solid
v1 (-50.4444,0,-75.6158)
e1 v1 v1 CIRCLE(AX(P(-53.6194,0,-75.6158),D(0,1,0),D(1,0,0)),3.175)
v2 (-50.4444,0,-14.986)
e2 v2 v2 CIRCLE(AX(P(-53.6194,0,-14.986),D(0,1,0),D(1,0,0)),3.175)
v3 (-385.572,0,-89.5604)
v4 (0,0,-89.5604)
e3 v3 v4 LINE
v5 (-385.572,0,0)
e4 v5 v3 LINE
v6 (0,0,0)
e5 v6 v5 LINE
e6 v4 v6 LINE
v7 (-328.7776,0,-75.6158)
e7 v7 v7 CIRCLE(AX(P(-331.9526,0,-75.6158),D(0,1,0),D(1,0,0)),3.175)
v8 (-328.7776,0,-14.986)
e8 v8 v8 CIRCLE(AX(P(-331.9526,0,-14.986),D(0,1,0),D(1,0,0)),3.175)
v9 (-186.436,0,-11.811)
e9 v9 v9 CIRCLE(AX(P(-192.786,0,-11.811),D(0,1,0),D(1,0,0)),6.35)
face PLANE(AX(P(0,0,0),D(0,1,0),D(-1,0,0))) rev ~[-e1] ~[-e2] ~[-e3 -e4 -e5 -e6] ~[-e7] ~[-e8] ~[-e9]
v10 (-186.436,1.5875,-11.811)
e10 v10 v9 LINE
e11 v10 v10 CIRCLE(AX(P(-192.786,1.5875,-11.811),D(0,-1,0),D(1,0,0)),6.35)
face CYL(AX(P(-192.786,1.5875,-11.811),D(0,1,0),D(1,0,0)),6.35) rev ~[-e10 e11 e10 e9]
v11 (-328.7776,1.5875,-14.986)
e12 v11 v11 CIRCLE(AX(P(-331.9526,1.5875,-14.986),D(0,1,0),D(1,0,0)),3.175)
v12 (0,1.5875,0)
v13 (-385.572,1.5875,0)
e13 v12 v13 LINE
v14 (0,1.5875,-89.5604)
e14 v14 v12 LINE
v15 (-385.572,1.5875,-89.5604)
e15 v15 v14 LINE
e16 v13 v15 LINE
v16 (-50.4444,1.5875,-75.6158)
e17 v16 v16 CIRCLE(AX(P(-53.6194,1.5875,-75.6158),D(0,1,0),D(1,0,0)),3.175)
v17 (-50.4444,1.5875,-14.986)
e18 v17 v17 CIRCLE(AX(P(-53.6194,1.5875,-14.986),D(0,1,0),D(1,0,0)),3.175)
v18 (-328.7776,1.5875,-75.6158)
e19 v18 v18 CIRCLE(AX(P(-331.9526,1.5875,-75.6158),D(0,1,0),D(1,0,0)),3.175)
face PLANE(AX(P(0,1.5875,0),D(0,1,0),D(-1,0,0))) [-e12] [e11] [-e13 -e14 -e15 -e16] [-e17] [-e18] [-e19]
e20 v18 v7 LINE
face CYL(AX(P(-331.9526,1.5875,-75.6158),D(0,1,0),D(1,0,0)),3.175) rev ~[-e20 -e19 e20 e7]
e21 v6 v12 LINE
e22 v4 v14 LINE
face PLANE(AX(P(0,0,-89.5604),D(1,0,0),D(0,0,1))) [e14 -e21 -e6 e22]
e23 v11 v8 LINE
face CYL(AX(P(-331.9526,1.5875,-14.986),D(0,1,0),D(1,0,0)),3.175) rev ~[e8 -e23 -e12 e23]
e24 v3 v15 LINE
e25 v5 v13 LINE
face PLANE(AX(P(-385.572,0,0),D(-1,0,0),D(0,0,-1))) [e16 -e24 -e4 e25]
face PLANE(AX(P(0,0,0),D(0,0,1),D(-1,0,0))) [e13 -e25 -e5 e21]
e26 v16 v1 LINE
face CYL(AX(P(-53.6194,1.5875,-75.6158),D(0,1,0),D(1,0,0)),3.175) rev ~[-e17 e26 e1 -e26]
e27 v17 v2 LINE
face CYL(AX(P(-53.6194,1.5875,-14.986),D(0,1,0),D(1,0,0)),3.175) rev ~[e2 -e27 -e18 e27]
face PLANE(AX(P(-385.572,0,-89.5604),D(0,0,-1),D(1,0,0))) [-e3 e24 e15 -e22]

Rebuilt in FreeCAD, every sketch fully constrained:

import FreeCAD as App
import Part
import Sketcher
from FreeCAD import Vector
Q = App.Units.Quantity


def add_polygon(sketch, points):
    """Adds a closed chain of lines whose ends are joined by coincident constraints."""
    first, n = sketch.GeometryCount, len(points)
    for a, b in zip(points, points[1:] + points[:1]):
        sketch.addGeometry(Part.LineSegment(App.Vector(*a, 0), App.Vector(*b, 0)), False)
    for i in range(n):
        sketch.addConstraint(Sketcher.Constraint("Coincident", first + i, 2, first + (i + 1) % n, 1))

doc = App.newDocument("Part")
body = doc.addObject("PartDesign::Body", "Body")

# Sketch on XZ plane
sketch1 = body.newObject("Sketcher::SketchObject", "Sketch")
sketch1.AttachmentSupport = (doc.getObject("XZ_Plane"), [""])
sketch1.MapMode = "FlatFace"
add_polygon(sketch1, [(-386, 0), (0, 0), (0, -90), (-386, -90)])  # lines 0-3
sketch1.addConstraint([
    Sketcher.Constraint("Horizontal", 0),
    Sketcher.Constraint("Vertical", 1),
    Sketcher.Constraint("Horizontal", 2),
    Sketcher.Constraint("Vertical", 3),
    Sketcher.Constraint("Coincident", 0, 2, -1, 1),
    Sketcher.Constraint("DistanceX", 0, 1, 0, 2, Q("15.18 in")),
    Sketcher.Constraint("DistanceY", 1, 2, 1, 1, Q("3.526 in")),
])
pad1 = body.newObject("PartDesign::Pad", "Pad")
pad1.Profile = sketch1
pad1.Length = Q("0.0625 in")
pad1.Reversed = True

# Sketch on XZ plane
sketch2 = body.newObject("Sketcher::SketchObject", "Sketch001")
sketch2.AttachmentSupport = (doc.getObject("XZ_Plane"), [""])
sketch2.MapMode = "FlatFace"
sketch2.AttachmentOffset = App.Placement(Vector(0, 0, -0.0625 * 25.4), App.Rotation())
sketch2.addGeometry([
    Part.Circle(Vector(-192.8, -11.8, 0), Vector(0, 0, 1), 6.3),  # 0
    Part.Circle(Vector(-332, -75.6, 0), Vector(0, 0, 1), 3.2),  # 1
    Part.Circle(Vector(-332, -15, 0), Vector(0, 0, 1), 3.2),  # 2
    Part.Circle(Vector(-53.6, -75.6, 0), Vector(0, 0, 1), 3.2),  # 3
    Part.Circle(Vector(-53.6, -15, 0), Vector(0, 0, 1), 3.2),  # 4
], False)
sketch2.addConstraint([
    Sketcher.Constraint("Equal", 1, 2),
    Sketcher.Constraint("Equal", 2, 3),
    Sketcher.Constraint("Equal", 3, 4),
    Sketcher.Constraint("Horizontal", 1, 3, 3, 3),
    Sketcher.Constraint("Horizontal", 2, 3, 4, 3),
    Sketcher.Constraint("Vertical", 1, 3, 2, 3),
    Sketcher.Constraint("Vertical", 3, 3, 4, 3),
    Sketcher.Constraint("Diameter", 0, Q("0.5 in")),
    Sketcher.Constraint("Diameter", 1, Q("0.25 in")),
    Sketcher.Constraint("DistanceX", 0, 3, -1, 1, Q("7.59 in")),
    Sketcher.Constraint("DistanceY", 2, 3, -1, 1, Q("0.59 in")),
    Sketcher.Constraint("DistanceY", 0, 3, -1, 1, Q("0.465 in")),
    Sketcher.Constraint("DistanceX", 1, 3, -1, 1, Q("13.069 in")),
    Sketcher.Constraint("DistanceY", 1, 3, -1, 1, Q("2.977 in")),
    Sketcher.Constraint("DistanceX", 3, 3, -1, 1, Q("2.111 in")),
])
pocket1 = body.newObject("PartDesign::Pocket", "Pocket")
pocket1.Profile = sketch2
pocket1.Length = Q("0.25 in")
pocket1.Reversed = True

doc.recompute()
